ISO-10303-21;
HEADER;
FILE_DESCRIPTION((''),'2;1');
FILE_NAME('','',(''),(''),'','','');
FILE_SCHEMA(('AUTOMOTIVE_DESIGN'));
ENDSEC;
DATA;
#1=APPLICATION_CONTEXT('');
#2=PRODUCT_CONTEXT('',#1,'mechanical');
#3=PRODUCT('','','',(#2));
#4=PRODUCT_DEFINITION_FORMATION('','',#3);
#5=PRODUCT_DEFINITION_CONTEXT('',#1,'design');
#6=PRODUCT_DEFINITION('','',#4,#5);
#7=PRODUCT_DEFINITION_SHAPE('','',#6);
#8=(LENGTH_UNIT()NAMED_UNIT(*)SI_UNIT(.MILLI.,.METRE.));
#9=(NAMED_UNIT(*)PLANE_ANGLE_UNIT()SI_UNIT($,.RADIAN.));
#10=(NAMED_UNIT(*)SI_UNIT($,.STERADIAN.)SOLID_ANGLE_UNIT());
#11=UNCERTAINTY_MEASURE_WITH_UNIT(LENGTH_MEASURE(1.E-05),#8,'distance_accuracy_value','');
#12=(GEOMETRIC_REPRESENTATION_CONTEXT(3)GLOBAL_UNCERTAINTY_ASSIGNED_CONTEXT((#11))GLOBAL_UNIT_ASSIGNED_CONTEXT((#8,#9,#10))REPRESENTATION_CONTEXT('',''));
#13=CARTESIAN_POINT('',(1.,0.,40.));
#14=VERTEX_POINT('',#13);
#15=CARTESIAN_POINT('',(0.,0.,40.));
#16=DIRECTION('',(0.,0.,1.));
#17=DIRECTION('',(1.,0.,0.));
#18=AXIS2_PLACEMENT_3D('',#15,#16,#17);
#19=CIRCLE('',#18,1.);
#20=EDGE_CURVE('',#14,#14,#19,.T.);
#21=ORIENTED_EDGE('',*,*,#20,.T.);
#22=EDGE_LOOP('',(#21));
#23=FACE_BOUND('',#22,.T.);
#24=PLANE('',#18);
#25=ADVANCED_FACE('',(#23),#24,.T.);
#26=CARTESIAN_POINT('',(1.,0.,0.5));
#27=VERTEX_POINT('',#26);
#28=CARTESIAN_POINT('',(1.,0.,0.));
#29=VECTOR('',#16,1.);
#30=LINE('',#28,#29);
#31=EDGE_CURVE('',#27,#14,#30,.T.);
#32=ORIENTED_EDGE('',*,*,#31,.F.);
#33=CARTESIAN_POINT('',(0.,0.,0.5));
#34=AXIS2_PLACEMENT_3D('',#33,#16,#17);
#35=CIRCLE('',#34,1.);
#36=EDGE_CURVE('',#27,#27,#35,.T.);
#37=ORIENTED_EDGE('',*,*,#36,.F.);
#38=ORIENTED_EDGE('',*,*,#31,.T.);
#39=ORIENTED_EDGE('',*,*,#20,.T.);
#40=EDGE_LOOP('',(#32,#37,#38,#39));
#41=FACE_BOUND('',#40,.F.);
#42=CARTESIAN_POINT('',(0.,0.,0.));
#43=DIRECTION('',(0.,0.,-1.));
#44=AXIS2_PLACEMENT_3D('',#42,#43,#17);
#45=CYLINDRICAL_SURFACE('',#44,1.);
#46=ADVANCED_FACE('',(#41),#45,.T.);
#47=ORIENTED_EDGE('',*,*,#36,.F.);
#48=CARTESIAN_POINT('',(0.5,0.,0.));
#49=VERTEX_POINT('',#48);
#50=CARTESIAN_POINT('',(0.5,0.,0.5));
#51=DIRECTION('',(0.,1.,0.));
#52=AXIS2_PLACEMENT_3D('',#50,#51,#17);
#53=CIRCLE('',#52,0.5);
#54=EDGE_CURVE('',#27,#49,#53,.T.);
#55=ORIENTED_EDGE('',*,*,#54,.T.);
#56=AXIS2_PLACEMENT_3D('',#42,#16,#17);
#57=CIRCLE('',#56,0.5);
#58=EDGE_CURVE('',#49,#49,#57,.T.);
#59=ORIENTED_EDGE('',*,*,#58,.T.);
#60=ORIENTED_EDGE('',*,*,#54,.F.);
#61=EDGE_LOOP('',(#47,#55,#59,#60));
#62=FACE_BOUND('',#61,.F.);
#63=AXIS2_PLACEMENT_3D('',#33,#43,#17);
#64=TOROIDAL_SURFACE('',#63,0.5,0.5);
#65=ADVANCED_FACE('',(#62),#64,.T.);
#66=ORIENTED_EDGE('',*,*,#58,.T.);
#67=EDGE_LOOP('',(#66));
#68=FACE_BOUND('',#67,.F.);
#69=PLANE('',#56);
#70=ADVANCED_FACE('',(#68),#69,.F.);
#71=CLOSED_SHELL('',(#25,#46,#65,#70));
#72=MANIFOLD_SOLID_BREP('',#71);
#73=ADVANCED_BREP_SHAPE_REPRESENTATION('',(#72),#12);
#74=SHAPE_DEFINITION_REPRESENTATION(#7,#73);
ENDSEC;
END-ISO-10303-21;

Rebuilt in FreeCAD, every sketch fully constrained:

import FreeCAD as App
import Part
import Sketcher
from FreeCAD import Vector


def edges_at(feature, points):
    """Names of the edges that pass closest to the given points."""
    edges = feature.Shape.Edges
    near = lambda p: min(range(len(edges)), key=lambda i: edges[i].distToShape(Part.Vertex(*p))[0])
    return sorted({f"Edge{near(p) + 1}" for p in points})

doc = App.newDocument("Part")
body = doc.addObject("PartDesign::Body", "Body")

# Sketch on XY plane
sketch1 = body.newObject("Sketcher::SketchObject", "Sketch")
sketch1.AttachmentSupport = (doc.getObject("XY_Plane"), [""])
sketch1.MapMode = "FlatFace"
sketch1.addGeometry(Part.Circle(Vector(0, 0, 0), Vector(0, 0, 1), 1), False)
sketch1.addConstraint([
    Sketcher.Constraint("Coincident", 0, 3, -1, 1),
    Sketcher.Constraint("Diameter", 0, 2.0),
])
pad1 = body.newObject("PartDesign::Pad", "Pad")
pad1.Profile = sketch1
pad1.Length = 40
doc.recompute()

fillet = body.newObject("PartDesign::Fillet", "Fillet")
fillet.Base = (pad1, edges_at(pad1, [(-1, 0, 0)]))
fillet.Radius = 0.5

doc.recompute()
